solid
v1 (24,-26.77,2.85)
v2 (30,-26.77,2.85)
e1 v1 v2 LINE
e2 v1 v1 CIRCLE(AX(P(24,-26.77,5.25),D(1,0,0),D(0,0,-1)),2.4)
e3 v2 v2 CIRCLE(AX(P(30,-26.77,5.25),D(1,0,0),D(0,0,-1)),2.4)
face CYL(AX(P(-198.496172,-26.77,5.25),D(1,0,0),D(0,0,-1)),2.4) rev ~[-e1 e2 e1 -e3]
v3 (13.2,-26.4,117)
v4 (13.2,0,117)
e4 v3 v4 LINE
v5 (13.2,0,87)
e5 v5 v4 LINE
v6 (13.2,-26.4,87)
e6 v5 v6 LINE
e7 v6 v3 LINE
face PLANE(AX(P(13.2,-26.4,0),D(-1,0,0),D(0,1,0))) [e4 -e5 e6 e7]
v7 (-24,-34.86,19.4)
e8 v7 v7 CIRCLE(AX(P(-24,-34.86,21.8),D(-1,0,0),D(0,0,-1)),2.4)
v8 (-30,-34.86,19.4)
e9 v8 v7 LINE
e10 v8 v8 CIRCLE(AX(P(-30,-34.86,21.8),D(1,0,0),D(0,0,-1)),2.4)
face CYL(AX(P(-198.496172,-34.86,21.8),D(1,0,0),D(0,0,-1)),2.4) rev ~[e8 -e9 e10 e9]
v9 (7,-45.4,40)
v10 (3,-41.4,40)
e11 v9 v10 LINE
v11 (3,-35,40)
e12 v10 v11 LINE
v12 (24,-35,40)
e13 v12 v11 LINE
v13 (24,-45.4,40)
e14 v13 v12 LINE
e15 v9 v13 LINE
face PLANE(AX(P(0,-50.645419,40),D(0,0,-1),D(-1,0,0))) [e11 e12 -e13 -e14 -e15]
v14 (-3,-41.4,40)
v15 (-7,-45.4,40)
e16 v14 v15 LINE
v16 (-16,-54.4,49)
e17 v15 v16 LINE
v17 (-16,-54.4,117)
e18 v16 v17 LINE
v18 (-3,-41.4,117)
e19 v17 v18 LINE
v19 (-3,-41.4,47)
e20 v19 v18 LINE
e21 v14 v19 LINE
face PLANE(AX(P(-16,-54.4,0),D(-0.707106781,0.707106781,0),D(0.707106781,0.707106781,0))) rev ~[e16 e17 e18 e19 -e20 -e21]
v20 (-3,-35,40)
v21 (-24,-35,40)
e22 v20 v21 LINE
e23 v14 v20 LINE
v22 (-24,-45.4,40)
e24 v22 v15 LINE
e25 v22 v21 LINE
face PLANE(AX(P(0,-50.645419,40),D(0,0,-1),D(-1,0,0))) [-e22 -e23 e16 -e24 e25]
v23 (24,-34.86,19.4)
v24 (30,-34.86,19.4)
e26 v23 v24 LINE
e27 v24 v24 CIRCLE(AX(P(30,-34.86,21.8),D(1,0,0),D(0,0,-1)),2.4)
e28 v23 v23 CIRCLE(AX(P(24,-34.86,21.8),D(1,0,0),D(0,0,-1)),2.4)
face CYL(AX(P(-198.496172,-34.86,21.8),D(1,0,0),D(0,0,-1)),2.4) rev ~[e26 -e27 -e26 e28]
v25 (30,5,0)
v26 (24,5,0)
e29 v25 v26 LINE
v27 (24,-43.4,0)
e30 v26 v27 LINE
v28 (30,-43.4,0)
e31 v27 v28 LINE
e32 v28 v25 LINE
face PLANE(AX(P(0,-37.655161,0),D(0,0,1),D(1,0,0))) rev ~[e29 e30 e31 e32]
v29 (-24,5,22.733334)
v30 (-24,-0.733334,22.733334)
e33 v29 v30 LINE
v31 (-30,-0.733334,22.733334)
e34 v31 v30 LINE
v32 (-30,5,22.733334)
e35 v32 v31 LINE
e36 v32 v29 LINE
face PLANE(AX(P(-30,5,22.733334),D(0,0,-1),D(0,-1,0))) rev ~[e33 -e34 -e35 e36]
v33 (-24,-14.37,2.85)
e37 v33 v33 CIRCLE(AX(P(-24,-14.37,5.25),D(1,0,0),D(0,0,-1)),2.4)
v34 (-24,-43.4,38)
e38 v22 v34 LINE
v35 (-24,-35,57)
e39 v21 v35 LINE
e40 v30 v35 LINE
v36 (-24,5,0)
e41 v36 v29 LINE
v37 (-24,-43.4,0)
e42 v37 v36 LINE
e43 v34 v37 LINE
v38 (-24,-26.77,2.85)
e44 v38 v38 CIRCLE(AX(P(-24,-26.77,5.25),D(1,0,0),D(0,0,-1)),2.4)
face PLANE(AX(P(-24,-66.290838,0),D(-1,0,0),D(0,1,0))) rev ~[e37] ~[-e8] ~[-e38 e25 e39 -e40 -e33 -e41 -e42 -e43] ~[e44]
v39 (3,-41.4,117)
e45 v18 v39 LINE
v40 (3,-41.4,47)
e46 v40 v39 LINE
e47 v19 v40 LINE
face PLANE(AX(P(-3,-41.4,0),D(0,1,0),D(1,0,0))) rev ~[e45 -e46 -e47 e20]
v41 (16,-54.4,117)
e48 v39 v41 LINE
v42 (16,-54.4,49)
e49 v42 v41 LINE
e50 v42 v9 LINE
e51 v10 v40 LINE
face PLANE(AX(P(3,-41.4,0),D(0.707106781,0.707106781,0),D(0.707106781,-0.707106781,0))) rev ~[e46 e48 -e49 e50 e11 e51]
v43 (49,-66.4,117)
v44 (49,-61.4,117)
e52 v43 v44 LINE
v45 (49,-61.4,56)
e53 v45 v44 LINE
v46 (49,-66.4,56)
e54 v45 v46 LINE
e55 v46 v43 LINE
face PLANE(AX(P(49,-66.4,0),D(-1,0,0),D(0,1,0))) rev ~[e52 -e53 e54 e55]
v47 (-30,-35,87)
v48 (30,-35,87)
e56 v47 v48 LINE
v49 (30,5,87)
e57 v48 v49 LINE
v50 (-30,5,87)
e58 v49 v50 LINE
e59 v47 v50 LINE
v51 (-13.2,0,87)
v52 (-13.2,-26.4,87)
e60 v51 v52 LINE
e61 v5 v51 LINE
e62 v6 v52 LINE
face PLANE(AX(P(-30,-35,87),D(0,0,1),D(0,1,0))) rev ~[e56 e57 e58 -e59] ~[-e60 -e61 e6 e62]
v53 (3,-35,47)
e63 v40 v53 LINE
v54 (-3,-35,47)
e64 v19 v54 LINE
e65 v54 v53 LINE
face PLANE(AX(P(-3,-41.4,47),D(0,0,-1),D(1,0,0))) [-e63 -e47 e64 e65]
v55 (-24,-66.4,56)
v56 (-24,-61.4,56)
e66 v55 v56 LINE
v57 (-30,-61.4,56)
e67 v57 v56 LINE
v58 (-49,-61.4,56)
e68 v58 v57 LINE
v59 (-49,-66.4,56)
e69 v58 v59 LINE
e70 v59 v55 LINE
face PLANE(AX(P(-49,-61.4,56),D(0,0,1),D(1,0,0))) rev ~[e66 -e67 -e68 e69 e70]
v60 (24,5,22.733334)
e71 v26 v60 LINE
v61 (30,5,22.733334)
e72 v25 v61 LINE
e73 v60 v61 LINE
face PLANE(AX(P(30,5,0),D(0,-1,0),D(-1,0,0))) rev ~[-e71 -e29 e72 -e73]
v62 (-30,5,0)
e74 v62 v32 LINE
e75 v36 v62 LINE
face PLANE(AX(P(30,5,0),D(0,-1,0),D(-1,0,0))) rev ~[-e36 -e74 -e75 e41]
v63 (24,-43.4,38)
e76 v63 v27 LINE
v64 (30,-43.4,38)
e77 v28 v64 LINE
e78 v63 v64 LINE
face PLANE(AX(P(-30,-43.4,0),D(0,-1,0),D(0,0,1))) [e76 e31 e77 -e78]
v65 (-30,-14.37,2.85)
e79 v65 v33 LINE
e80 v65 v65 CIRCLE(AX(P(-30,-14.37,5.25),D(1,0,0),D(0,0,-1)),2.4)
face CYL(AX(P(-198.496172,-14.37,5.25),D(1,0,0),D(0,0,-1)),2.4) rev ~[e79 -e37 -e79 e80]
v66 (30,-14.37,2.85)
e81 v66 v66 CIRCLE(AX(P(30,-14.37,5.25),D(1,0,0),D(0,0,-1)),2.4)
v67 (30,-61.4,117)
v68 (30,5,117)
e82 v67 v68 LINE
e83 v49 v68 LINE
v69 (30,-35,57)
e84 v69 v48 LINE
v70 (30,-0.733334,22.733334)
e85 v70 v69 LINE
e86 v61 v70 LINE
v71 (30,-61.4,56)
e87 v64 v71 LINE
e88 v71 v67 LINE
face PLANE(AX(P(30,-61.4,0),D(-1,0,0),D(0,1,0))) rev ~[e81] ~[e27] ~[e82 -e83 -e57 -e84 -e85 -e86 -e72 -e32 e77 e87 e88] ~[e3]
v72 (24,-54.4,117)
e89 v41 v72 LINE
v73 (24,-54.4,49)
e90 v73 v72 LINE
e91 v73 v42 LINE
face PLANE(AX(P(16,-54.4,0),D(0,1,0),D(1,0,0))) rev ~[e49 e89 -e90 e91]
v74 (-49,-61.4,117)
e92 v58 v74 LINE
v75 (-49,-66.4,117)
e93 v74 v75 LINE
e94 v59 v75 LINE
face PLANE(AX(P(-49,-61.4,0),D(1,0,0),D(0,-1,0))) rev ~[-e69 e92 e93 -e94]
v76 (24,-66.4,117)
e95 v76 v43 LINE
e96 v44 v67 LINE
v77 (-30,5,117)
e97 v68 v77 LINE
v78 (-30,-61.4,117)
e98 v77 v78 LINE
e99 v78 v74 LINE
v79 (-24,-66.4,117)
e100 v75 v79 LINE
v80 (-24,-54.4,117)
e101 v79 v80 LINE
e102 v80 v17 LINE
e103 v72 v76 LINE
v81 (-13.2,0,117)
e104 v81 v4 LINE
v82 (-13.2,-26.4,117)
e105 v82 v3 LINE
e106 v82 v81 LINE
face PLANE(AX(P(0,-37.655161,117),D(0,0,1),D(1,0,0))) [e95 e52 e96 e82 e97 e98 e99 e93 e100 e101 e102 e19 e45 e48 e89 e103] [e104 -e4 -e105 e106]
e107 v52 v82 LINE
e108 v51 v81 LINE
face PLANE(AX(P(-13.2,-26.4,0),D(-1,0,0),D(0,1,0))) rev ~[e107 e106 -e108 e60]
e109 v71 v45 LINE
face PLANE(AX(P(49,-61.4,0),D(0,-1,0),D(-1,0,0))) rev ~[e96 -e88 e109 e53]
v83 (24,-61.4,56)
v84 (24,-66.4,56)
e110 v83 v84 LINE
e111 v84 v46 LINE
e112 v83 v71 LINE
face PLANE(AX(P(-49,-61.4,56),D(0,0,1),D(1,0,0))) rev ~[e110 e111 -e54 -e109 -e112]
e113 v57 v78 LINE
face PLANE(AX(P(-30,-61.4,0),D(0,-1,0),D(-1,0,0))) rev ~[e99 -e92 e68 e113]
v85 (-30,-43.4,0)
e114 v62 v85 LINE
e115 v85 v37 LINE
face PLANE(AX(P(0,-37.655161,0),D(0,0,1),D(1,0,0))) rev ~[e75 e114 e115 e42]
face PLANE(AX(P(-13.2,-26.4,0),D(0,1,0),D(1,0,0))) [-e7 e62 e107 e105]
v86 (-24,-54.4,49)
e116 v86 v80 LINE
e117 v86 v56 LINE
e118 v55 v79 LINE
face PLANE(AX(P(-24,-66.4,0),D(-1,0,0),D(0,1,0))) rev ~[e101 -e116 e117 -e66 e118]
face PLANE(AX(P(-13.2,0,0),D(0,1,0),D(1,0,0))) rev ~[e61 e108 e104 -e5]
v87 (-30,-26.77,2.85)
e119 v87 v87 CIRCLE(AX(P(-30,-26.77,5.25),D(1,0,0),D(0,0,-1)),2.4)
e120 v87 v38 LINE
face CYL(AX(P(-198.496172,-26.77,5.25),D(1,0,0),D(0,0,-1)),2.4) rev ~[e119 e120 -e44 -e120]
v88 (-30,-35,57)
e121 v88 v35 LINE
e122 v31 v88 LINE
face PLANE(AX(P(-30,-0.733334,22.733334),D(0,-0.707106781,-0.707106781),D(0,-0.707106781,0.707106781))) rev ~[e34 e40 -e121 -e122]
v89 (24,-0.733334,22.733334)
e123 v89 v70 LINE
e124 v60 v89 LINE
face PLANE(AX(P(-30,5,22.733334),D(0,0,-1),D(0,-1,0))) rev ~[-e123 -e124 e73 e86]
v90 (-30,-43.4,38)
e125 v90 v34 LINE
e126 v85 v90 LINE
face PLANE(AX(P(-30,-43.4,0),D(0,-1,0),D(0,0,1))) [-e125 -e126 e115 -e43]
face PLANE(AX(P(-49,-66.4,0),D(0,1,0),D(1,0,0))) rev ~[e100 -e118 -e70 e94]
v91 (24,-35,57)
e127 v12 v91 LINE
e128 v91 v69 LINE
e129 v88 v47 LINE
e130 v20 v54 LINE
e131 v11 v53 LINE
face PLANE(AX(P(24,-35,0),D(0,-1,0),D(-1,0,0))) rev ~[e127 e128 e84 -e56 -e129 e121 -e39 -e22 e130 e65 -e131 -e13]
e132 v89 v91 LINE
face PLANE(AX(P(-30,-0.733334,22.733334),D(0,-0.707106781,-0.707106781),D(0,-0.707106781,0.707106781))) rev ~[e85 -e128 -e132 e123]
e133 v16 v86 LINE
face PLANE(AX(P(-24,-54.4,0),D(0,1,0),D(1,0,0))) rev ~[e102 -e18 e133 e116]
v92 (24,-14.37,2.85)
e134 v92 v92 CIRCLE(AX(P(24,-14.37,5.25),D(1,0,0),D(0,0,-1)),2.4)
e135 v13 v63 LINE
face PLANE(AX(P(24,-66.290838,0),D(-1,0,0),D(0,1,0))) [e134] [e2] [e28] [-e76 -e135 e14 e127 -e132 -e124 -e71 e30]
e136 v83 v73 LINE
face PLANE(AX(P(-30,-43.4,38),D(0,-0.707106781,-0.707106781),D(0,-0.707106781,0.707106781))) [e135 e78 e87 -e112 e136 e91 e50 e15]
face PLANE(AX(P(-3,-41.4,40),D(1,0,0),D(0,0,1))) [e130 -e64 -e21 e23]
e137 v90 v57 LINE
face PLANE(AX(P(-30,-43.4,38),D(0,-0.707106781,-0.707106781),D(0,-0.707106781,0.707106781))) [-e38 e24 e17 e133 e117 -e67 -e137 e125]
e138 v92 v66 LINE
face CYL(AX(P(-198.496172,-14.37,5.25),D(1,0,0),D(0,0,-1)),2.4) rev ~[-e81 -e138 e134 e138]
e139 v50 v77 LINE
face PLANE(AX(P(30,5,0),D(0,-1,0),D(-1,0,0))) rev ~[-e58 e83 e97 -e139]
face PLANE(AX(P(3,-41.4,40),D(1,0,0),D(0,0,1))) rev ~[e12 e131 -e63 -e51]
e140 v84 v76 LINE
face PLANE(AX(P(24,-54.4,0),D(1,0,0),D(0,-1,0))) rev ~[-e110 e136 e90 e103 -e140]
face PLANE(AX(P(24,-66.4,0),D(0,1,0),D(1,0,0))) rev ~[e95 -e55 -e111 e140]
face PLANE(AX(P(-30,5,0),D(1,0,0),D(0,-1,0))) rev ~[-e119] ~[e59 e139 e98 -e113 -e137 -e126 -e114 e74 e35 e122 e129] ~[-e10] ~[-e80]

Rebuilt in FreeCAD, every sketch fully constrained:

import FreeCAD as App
import Part
import Sketcher

V = App.Vector
Q = App.Units.Quantity


def add_polygon(sketch, points):
    """Adds a closed chain of lines whose ends are joined by coincident constraints."""
    first, n = sketch.GeometryCount, len(points)
    for a, b in zip(points, points[1:] + points[:1]):
        sketch.addGeometry(Part.LineSegment(App.Vector(*a, 0), App.Vector(*b, 0)), False)
    for i in range(n):
        sketch.addConstraint(Sketcher.Constraint("Coincident", first + i, 2, first + (i + 1) % n, 1))

doc = App.newDocument("Part")
body = doc.addObject("PartDesign::Body", "Body")

# Sketch on XY plane
sketch1 = body.newObject("Sketcher::SketchObject", "Sketch")
sketch1.AttachmentSupport = (doc.getObject("XY_Plane"), [""])
sketch1.MapMode = "FlatFace"
add_polygon(sketch1, [(-3, -41), (3, -41), (16, -54), (24, -54), (24, -66), (49, -66), (49, -61), (30, -61), (30, 5), (-30, 5), (-30, -61), (-49, -61), (-49, -66), (-24, -66), (-24, -54), (-16, -54)])  # lines 0-15
add_polygon(sketch1, [(13, -26), (-13, -26), (-13, 0), (13, 0)])  # lines 16-19
sketch1.addConstraint([
    Sketcher.Constraint("Horizontal", 0),
    Sketcher.Constraint("Horizontal", 2),
    Sketcher.Constraint("Vertical", 3),
    Sketcher.Constraint("Horizontal", 4),
    Sketcher.Constraint("Vertical", 5),
    Sketcher.Constraint("Horizontal", 6),
    Sketcher.Constraint("Vertical", 7),
    Sketcher.Constraint("Horizontal", 8),
    Sketcher.Constraint("Vertical", 9),
    Sketcher.Constraint("Horizontal", 10),
    Sketcher.Constraint("Vertical", 11),
    Sketcher.Constraint("Horizontal", 12),
    Sketcher.Constraint("Vertical", 13),
    Sketcher.Constraint("Horizontal", 14),
    Sketcher.Constraint("Horizontal", 16),
    Sketcher.Constraint("Vertical", 17),
    Sketcher.Constraint("Horizontal", 18),
    Sketcher.Constraint("Vertical", 19),
    Sketcher.Constraint("Symmetric", 17, 2, 18, 2, -1, 1),
    Sketcher.Constraint("Symmetric", 6, 2, 9, 2, -2),
    Sketcher.Constraint("Symmetric", 4, 2, 11, 2, -2),
    Sketcher.Constraint("Symmetric", 2, 2, 13, 2, -2),
    Sketcher.Constraint("Perpendicular", 1, 15),
    Sketcher.Constraint("Equal", 2, 14),
    Sketcher.Constraint("Equal", 18, 17),
    Sketcher.Constraint("Equal", 1, 15),
    Sketcher.Constraint("DistanceX", 0, 1, 0, 2, Q("6 mm")),
    Sketcher.Constraint("DistanceX", 2, 1, 2, 2, Q("8 mm")),
    Sketcher.Constraint("DistanceX", 4, 1, 4, 2, Q("25 mm")),
    Sketcher.Constraint("DistanceX", 6, 2, 6, 1, Q("19 mm")),
    Sketcher.Constraint("DistanceX", 8, 2, 8, 1, Q("60 mm")),
    Sketcher.Constraint("DistanceY", 3, 2, 3, 1, Q("12 mm")),
    Sketcher.Constraint("DistanceY", 5, 1, 5, 2, Q("5 mm")),
    Sketcher.Constraint("DistanceX", 16, 2, 16, 1, Q("26.4 mm")),
    Sketcher.Constraint("DistanceY", 7, 1, 7, 2, Q("66.4 mm")),
    Sketcher.Constraint("DistanceY", -1, 1, 7, 2, Q("5 mm")),
])
pad1 = body.newObject("PartDesign::Pad", "Pad")
pad1.Profile = sketch1
pad1.Length = 117

# Sketch on XY plane
sketch2 = body.newObject("Sketcher::SketchObject", "Sketch001")
sketch2.AttachmentSupport = (doc.getObject("XY_Plane"), [""])
sketch2.MapMode = "FlatFace"
add_polygon(sketch2, [(24, 5), (24, -35), (-24, -35), (-24, 5)])  # lines 0-3
sketch2.addConstraint([
    Sketcher.Constraint("Vertical", 0),
    Sketcher.Constraint("Horizontal", 1),
    Sketcher.Constraint("Vertical", 2),
    Sketcher.Constraint("Horizontal", 3),
    Sketcher.Constraint("DistanceX", 1, 2, 1, 1, Q("48 mm")),
    Sketcher.Constraint("DistanceY", 0, 2, 0, 1, Q("40 mm")),
    Sketcher.Constraint("DistanceX", -1, 1, 0, 2, Q("24 mm")),
    Sketcher.Constraint("DistanceY", 0, 2, -1, 1, Q("35 mm")),
])
pocket1 = body.newObject("PartDesign::Pocket", "Pocket")
pocket1.Profile = sketch2
pocket1.Length = 87
pocket1.Reversed = True

# Sketch on YZ plane
sketch3 = body.newObject("Sketcher::SketchObject", "Sketch002")
sketch3.AttachmentSupport = (doc.getObject("YZ_Plane"), [""])
sketch3.MapMode = "FlatFace"
sketch3.AttachmentOffset = App.Placement(V(0, 0, -30), App.Rotation())
add_polygon(sketch3, [(-43, 38), (-43, 0), (-61, 0), (-61, 56)])  # lines 0-3
sketch3.addConstraint([
    Sketcher.Constraint("Vertical", 0),
    Sketcher.Constraint("Horizontal", 1),
    Sketcher.Constraint("Vertical", 2),
    Sketcher.Constraint("PointOnObject", 0, 2, -1),
    Sketcher.Constraint("DistanceX", 1, 2, 1, 1, Q("18 mm")),
    Sketcher.Constraint("DistanceY", 0, 2, 0, 1, Q("38 mm")),
    Sketcher.Constraint("DistanceY", 2, 1, 2, 2, Q("56 mm")),
    Sketcher.Constraint("DistanceX", 0, 2, -1, 1, Q("43.4 mm")),
])
pocket2 = body.newObject("PartDesign::Pocket", "Pocket001")
pocket2.Profile = sketch3
pocket2.Type = "ThroughAll"
pocket2.Reversed = True

# Sketch on YZ plane
sketch4 = body.newObject("Sketcher::SketchObject", "Sketch003")
sketch4.AttachmentSupport = (doc.getObject("YZ_Plane"), [""])
sketch4.MapMode = "FlatFace"
sketch4.AttachmentOffset = App.Placement(V(0, 0, -30), App.Rotation())
sketch4.addGeometry([
    Part.Circle(V(-14.4, 5.2, 0), V(0, 0, 1), 2.4),
    Part.Circle(V(-26.8, 5.2, 0), V(0, 0, 1), 2.4),
    Part.Circle(V(-34.9, 21.8, 0), V(0, 0, 1), 2.4),
], False)
sketch4.addConstraint([
    Sketcher.Constraint("Equal", 0, 1),
    Sketcher.Constraint("Equal", 1, 2),
    Sketcher.Constraint("Horizontal", 0, 3, 1, 3),
    Sketcher.Constraint("Diameter", 0, Q("4.8 mm")),
    Sketcher.Constraint("DistanceY", -1, 1, 2, 3, Q("21.8 mm")),
    Sketcher.Constraint("DistanceX", 1, 3, 0, 3, Q("12.4 mm")),
    Sketcher.Constraint("DistanceX", 0, 3, -1, 1, Q("14.37 mm")),
    Sketcher.Constraint("DistanceY", -1, 1, 0, 3, Q("5.25 mm")),
    Sketcher.Constraint("DistanceX", 2, 3, -1, 1, Q("34.86 mm")),
])
doc.recompute()
hole = body.newObject("PartDesign::Hole", "Hole")
hole.Profile = sketch4
hole.ThreadType = "None"
hole.Diameter = 4.8
hole.DepthType = "ThroughAll"
hole.Reversed = True

# Sketch on XY plane
sketch5 = body.newObject("Sketcher::SketchObject", "Sketch004")
sketch5.AttachmentSupport = (doc.getObject("XY_Plane"), [""])
sketch5.MapMode = "FlatFace"
add_polygon(sketch5, [(24, -35), (24, -66), (-24, -66), (-24, -35)])  # lines 0-3
sketch5.addConstraint([
    Sketcher.Constraint("Vertical", 0),
    Sketcher.Constraint("Horizontal", 1),
    Sketcher.Constraint("Vertical", 2),
    Sketcher.Constraint("Horizontal", 3),
    Sketcher.Constraint("DistanceX", 1, 2, 1, 1, Q("48 mm")),
    Sketcher.Constraint("DistanceX", -1, 1, 0, 2, Q("24 mm")),
    Sketcher.Constraint("DistanceY", 2, 2, -1, 1, Q("35 mm")),
    Sketcher.Constraint("DistanceY", 0, 2, 0, 1, Q("31.290838 mm")),
])
pocket3 = body.newObject("PartDesign::Pocket", "Pocket002")
pocket3.Profile = sketch5
pocket3.Length = 40
pocket3.Reversed = True

# Sketch on YZ plane
sketch6 = body.newObject("Sketcher::SketchObject", "Sketch005")
sketch6.AttachmentSupport = (doc.getObject("YZ_Plane"), [""])
sketch6.MapMode = "FlatFace"
sketch6.AttachmentOffset = App.Placement(V(0, 0, -30), App.Rotation())
add_polygon(sketch6, [(-1, 23), (-35, 57), (-35, 87), (5, 87), (5, 23)])  # lines 0-4
sketch6.addConstraint([
    Sketcher.Constraint("Vertical", 1),
    Sketcher.Constraint("Horizontal", 2),
    Sketcher.Constraint("Vertical", 3),
    Sketcher.Constraint("Horizontal", 4),
    Sketcher.Constraint("DistanceX", 2, 1, 2, 2, Q("40 mm")),
    Sketcher.Constraint("DistanceY", 1, 1, 1, 2, Q("30 mm")),
    Sketcher.Constraint("Angle", 0, Q("135 deg")),
    Sketcher.Constraint("DistanceX", 0, 2, -1, 1, Q("35 mm")),
    Sketcher.Constraint("DistanceY", -1, 1, 0, 2, Q("57 mm")),
    Sketcher.Constraint("DistanceX", 4, 2, 4, 1, Q("5.733334 mm")),
])
pocket4 = body.newObject("PartDesign::Pocket", "Pocket003")
pocket4.Profile = sketch6
pocket4.Type = "ThroughAll"
pocket4.Reversed = True

# Sketch on XZ plane
sketch7 = body.newObject("Sketcher::SketchObject", "Sketch006")
sketch7.AttachmentSupport = (doc.getObject("XZ_Plane"), [""])
sketch7.MapMode = "FlatFace"
sketch7.AttachmentOffset = App.Placement(V(0, 0, 61.4), App.Rotation())
add_polygon(sketch7, [(-49, 0), (-49, 56), (49, 56), (49, 0)])  # lines 0-3
sketch7.addConstraint([
    Sketcher.Constraint("Vertical", 0),
    Sketcher.Constraint("Horizontal", 1),
    Sketcher.Constraint("Vertical", 2),
    Sketcher.Constraint("Horizontal", 3),
    Sketcher.Constraint("Symmetric", 2, 2, 3, 2, -1, 1),
    Sketcher.Constraint("DistanceX", 1, 1, 1, 2, Q("98 mm")),
    Sketcher.Constraint("DistanceY", 0, 1, 0, 2, Q("56 mm")),
])
pocket5 = body.newObject("PartDesign::Pocket", "Pocket004")
pocket5.Profile = sketch7
pocket5.Type = "ThroughAll"
pocket5.Reversed = True

# Sketch on XZ plane
sketch8 = body.newObject("Sketcher::SketchObject", "Sketch007")
sketch8.AttachmentSupport = (doc.getObject("XZ_Plane"), [""])
sketch8.MapMode = "FlatFace"
sketch8.AttachmentOffset = App.Placement(V(0, 0, 41.4), App.Rotation())
add_polygon(sketch8, [(-3, 47), (-3, 40), (3, 40), (3, 47)])  # lines 0-3
sketch8.addConstraint([
    Sketcher.Constraint("Vertical", 0),
    Sketcher.Constraint("Horizontal", 1),
    Sketcher.Constraint("Vertical", 2),
    Sketcher.Constraint("Horizontal", 3),
    Sketcher.Constraint("DistanceX", 1, 1, 1, 2, Q("6 mm")),
    Sketcher.Constraint("DistanceY", 0, 2, 0, 1, Q("7 mm")),
    Sketcher.Constraint("DistanceX", 0, 2, -1, 1, Q("3 mm")),
    Sketcher.Constraint("DistanceY", -1, 1, 0, 2, Q("40 mm")),
])
pocket6 = body.newObject("PartDesign::Pocket", "Pocket005")
pocket6.Profile = sketch8
pocket6.Type = "ThroughAll"

doc.recompute()
